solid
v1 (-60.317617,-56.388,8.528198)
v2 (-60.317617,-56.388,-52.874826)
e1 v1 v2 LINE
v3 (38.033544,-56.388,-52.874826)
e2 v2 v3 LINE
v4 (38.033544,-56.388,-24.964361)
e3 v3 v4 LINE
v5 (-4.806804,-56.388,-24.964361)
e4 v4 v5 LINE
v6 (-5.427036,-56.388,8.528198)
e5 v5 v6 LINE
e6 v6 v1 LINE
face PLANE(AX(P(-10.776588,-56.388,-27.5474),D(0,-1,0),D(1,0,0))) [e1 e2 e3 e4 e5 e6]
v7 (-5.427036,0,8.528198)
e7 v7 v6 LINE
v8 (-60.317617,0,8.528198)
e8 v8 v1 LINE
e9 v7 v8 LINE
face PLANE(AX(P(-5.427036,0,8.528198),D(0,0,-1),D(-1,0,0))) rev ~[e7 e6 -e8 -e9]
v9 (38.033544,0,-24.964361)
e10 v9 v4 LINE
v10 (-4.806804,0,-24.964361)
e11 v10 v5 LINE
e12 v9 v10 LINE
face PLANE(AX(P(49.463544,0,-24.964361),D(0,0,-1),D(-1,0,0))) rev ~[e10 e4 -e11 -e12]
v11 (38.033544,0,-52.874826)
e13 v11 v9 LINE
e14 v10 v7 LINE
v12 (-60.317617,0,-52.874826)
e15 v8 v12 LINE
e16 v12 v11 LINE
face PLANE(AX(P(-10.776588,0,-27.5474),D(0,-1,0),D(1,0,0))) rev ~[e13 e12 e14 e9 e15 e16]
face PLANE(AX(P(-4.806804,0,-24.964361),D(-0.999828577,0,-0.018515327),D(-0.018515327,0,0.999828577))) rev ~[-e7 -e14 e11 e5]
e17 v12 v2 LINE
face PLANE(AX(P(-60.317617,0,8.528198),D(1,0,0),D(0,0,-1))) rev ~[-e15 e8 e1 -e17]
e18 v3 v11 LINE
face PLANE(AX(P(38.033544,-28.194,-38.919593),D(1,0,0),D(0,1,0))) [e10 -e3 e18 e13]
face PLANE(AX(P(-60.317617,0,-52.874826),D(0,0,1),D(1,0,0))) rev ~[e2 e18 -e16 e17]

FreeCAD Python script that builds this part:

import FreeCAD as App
import Part
import Sketcher
from FreeCAD import Vector
Q = App.Units.Quantity

doc = App.newDocument("Part")
body = doc.addObject("PartDesign::Body", "Body")

# Sketch on XZ plane
sketch1 = body.newObject("Sketcher::SketchObject", "Sketch")
sketch1.AttachmentSupport = (doc.getObject("XZ_Plane"), [""])
sketch1.MapMode = "FlatFace"
sketch1.addGeometry([
    Part.LineSegment(Vector(49, -25, 0), Vector(-5, -25, 0)),  # 0
    Part.LineSegment(Vector(-5, -25, 0), Vector(-5, 9, 0)),  # 1
    Part.LineSegment(Vector(-5, 9, 0), Vector(-60, 9, 0)),  # 2
    Part.LineSegment(Vector(-60, 9, 0), Vector(-60, -53, 0)),  # 3
    Part.LineSegment(Vector(-60, -53, 0), Vector(49, -53, 0)),  # 4
    Part.LineSegment(Vector(49, -53, 0), Vector(49, -25, 0)),  # 5
], False)
sketch1.addConstraint([
    Sketcher.Constraint("Coincident", 0, 2, 1, 1),
    Sketcher.Constraint("Coincident", 1, 2, 2, 1),
    Sketcher.Constraint("Coincident", 2, 2, 3, 1),
    Sketcher.Constraint("Coincident", 3, 2, 4, 1),
    Sketcher.Constraint("Coincident", 4, 2, 5, 1),
    Sketcher.Constraint("Coincident", 5, 2, 0, 1),
    Sketcher.Constraint("Horizontal", 0),
    Sketcher.Constraint("Horizontal", 2),
    Sketcher.Constraint("Vertical", 3),
    Sketcher.Constraint("Horizontal", 4),
    Sketcher.Constraint("Vertical", 5),
    Sketcher.Constraint("Distance", 1, 33.498301),
    Sketcher.Constraint("DistanceX", 2, 2, 2, 1, 54.890581),
    Sketcher.Constraint("DistanceX", 4, 1, 4, 2, 109.781161),
    Sketcher.Constraint("DistanceX", 0, 2, 0, 1, 54.270348),
    Sketcher.Constraint("DistanceY", 3, 2, 3, 1, 61.403024),
    Sketcher.Constraint("DistanceY", 0, 2, -1, 1, 24.964361),
    Sketcher.Constraint("DistanceX", 0, 2, -1, 1, 4.806804),
])
pad1 = body.newObject("PartDesign::Pad", "Pad")
pad1.Profile = sketch1
pad1.Length = Q("2.22 in")

# Sketch on YZ plane
sketch2 = body.newObject("Sketcher::SketchObject", "Sketch001")
sketch2.AttachmentSupport = (doc.getObject("YZ_Plane"), [""])
sketch2.MapMode = "FlatFace"
sketch2.AttachmentOffset = App.Placement(Vector(0, 0, 49.463544), App.Rotation())
sketch2.addGeometry([
    Part.LineSegment(Vector(-56, -25, 0), Vector(-56, -53, 0)),
    Part.LineSegment(Vector(-56, -53, 0), Vector(0, -53, 0)),
    Part.LineSegment(Vector(0, -53, 0), Vector(0, -25, 0)),
    Part.LineSegment(Vector(0, -25, 0), Vector(-56, -25, 0)),
], False)
sketch2.addConstraint([
    Sketcher.Constraint("Coincident", 0, 2, 1, 1),
    Sketcher.Constraint("Coincident", 1, 2, 2, 1),
    Sketcher.Constraint("Coincident", 2, 2, 3, 1),
    Sketcher.Constraint("Coincident", 3, 2, 0, 1),
    Sketcher.Constraint("Vertical", 0),
    Sketcher.Constraint("Horizontal", 1),
    Sketcher.Constraint("Vertical", 2),
    Sketcher.Constraint("Horizontal", 3),
    Sketcher.Constraint("PointOnObject", 1, 2, -2),
    Sketcher.Constraint("DistanceX", 1, 1, 1, 2, Q("2.22 in")),
    Sketcher.Constraint("DistanceY", 0, 2, 0, 1, 27.910466),
    Sketcher.Constraint("DistanceY", 2, 2, -1, 1, 24.96436),
])
pocket1 = body.newObject("PartDesign::Pocket", "Pocket")
pocket1.Profile = sketch2
pocket1.Length = Q("0.45 in")

doc.recompute()
